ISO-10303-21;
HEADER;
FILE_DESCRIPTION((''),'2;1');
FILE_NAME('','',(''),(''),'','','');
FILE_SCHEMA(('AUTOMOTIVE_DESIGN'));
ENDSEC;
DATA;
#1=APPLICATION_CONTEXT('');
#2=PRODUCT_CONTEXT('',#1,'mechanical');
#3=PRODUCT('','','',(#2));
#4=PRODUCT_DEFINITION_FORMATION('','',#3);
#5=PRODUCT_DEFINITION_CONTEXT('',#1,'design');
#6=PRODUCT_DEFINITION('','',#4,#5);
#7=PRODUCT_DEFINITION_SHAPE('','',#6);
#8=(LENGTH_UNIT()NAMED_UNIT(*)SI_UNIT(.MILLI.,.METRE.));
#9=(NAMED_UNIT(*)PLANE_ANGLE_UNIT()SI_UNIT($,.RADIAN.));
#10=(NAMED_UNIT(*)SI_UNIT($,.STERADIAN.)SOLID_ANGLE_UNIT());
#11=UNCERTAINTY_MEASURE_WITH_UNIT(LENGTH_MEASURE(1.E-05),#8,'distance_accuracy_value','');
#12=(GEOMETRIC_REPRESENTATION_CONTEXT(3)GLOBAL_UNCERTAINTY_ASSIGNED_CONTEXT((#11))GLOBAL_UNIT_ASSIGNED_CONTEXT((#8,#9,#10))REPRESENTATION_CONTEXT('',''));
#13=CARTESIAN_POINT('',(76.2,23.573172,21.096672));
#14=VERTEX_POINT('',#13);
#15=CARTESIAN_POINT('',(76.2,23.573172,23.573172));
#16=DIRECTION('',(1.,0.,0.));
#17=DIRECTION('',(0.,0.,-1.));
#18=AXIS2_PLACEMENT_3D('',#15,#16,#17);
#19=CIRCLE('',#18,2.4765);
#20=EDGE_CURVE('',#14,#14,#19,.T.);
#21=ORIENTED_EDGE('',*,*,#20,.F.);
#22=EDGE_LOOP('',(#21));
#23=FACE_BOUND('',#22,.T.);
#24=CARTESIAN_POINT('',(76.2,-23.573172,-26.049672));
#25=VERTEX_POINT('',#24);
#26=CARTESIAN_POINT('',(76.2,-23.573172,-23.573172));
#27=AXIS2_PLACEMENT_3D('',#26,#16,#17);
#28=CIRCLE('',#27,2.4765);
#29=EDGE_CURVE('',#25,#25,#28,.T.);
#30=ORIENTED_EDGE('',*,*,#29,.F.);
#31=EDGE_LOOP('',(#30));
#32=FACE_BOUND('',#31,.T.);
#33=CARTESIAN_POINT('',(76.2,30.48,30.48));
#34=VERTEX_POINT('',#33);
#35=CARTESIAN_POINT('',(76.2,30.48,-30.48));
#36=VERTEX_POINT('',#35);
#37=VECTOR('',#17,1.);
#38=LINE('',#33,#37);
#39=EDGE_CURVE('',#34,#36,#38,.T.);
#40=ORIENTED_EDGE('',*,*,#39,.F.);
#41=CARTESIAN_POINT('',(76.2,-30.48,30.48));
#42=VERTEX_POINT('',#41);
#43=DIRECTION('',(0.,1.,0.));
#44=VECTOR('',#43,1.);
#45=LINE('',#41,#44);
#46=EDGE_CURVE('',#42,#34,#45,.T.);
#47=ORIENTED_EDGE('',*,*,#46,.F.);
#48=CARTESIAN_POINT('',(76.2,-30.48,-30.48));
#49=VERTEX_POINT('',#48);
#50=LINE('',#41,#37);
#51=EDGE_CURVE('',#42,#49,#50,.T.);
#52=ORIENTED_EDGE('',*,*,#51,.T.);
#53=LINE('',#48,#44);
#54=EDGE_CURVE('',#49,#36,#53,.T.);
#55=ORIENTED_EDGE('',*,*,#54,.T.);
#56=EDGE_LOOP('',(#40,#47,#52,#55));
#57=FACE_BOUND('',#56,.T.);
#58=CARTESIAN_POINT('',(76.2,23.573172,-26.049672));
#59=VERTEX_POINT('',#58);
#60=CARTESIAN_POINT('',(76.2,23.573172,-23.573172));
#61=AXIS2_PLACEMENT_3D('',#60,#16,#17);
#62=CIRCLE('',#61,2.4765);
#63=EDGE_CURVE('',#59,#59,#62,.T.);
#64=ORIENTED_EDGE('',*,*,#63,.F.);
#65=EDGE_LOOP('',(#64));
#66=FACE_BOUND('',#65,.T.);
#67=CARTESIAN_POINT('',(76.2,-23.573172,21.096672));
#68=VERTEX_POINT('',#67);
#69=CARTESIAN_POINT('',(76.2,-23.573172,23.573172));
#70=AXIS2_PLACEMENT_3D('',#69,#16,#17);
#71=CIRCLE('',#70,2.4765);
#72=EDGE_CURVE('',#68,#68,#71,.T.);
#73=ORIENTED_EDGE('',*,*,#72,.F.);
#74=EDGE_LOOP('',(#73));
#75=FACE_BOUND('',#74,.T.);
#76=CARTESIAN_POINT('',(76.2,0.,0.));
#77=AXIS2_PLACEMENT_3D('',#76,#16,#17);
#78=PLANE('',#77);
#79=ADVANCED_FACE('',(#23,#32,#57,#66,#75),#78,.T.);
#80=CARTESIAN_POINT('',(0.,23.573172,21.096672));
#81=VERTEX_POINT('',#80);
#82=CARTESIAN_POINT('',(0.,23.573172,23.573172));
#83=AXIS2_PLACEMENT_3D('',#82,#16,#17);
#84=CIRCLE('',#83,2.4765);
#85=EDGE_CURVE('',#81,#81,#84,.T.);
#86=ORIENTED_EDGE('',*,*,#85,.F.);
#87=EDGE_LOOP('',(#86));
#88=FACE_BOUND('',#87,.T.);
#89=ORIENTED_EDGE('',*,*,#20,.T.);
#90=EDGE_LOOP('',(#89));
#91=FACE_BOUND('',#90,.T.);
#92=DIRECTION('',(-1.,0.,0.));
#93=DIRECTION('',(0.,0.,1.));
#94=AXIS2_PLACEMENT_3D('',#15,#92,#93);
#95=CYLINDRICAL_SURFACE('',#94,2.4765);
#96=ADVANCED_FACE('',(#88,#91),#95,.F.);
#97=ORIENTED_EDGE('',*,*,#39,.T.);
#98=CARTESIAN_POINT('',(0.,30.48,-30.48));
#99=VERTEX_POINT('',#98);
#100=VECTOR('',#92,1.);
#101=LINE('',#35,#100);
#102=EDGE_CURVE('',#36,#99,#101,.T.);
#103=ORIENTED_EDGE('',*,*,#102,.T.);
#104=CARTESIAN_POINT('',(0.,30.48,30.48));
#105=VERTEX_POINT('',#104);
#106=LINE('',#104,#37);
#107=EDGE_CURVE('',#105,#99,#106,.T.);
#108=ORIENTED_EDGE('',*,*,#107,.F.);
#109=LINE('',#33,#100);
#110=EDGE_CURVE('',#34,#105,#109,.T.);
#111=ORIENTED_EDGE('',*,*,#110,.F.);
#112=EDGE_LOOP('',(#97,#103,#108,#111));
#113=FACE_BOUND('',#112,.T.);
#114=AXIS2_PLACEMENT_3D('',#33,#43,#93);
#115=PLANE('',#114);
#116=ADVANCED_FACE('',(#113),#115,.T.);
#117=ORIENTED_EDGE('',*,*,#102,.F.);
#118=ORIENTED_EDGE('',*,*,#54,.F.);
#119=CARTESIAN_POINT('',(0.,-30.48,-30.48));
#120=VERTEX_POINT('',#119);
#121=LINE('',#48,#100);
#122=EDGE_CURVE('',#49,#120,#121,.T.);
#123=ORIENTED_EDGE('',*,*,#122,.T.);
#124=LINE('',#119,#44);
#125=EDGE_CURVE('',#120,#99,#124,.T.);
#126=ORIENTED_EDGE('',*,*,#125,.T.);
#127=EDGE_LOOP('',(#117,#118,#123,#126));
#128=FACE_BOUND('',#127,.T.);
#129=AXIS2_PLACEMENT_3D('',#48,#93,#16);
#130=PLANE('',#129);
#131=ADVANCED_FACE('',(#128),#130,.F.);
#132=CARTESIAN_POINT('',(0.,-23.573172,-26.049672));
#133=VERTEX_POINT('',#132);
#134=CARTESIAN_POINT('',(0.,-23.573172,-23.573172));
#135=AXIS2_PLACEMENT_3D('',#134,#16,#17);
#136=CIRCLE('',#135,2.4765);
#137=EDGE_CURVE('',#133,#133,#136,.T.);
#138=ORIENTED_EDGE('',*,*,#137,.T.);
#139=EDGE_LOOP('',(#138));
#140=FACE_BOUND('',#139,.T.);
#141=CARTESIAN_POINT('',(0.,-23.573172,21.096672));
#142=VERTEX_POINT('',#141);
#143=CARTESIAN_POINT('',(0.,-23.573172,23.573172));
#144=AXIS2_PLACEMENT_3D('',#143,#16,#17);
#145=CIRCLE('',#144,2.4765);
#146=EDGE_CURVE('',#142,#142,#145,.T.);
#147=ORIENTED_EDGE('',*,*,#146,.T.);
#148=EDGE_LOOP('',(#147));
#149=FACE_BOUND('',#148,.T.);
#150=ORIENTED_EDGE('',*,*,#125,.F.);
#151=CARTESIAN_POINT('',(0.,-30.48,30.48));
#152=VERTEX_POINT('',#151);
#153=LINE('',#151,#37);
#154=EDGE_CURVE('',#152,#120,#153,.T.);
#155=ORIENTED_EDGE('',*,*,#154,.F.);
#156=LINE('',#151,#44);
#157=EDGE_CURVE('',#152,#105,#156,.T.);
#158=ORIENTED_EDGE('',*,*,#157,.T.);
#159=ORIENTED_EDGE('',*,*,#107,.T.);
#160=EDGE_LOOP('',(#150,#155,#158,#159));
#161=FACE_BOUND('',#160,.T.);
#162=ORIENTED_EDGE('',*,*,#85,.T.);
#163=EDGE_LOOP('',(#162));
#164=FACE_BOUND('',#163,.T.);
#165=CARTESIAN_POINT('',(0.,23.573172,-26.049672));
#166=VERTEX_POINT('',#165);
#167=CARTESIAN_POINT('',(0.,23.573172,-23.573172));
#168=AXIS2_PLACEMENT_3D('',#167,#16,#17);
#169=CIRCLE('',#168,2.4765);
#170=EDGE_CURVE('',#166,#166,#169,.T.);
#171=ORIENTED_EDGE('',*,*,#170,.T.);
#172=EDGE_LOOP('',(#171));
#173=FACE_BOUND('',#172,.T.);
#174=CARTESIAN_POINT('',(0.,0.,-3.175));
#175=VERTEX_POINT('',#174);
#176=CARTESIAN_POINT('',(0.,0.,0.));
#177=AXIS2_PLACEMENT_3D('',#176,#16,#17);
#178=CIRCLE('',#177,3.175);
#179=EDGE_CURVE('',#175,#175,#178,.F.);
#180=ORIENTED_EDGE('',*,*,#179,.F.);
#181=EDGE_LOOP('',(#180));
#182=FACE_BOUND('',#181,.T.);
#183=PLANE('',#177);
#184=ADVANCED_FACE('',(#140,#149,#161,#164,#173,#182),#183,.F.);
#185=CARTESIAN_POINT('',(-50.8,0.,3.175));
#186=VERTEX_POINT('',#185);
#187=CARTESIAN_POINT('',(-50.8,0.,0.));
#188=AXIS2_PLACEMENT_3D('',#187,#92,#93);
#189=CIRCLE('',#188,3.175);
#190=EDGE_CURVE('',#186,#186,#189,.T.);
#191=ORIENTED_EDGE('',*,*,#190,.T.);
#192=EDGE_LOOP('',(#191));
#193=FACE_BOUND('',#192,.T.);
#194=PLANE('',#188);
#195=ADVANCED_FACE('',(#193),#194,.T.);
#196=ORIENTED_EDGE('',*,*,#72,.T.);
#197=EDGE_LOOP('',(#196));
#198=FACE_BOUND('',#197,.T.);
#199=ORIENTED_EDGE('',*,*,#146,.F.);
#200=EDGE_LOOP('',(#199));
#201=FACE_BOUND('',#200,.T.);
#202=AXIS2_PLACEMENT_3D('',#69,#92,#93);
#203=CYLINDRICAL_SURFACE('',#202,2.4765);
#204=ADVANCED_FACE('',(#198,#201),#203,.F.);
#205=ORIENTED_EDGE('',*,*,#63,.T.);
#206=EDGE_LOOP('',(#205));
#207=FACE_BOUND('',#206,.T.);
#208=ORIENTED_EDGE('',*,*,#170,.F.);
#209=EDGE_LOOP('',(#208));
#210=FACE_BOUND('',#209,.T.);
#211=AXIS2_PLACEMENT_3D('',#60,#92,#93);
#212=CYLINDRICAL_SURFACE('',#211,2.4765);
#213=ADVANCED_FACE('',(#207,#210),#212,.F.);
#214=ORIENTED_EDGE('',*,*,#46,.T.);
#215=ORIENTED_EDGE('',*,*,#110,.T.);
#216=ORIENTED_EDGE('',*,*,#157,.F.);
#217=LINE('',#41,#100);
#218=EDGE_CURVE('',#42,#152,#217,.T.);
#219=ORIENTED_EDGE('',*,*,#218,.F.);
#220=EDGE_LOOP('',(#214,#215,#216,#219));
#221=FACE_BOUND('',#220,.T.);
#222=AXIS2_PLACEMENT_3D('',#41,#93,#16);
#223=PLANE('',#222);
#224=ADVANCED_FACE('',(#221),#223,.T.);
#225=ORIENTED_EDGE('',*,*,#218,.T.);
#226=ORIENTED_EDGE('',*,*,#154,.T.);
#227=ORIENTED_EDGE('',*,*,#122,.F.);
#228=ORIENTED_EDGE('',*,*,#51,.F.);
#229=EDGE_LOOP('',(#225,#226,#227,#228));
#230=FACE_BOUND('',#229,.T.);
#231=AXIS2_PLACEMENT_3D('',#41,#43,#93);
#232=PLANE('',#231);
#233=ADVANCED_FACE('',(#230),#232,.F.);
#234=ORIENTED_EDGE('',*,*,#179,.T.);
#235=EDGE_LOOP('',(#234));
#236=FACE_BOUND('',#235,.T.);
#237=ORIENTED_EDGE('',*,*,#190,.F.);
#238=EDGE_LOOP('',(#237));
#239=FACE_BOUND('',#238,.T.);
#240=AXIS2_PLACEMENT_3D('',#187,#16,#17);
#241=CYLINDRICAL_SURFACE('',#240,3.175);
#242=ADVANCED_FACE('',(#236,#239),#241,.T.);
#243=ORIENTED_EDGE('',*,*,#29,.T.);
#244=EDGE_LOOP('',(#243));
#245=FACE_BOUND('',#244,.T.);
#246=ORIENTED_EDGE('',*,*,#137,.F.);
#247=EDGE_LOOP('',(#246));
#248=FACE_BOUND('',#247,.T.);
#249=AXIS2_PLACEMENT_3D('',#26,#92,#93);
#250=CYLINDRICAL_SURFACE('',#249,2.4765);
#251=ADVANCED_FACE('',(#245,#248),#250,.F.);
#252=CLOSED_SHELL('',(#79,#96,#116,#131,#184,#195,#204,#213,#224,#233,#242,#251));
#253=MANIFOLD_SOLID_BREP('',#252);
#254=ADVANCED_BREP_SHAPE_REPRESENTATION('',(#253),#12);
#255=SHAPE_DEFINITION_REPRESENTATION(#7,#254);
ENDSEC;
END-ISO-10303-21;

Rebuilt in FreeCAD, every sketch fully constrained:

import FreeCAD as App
import Part
import Sketcher

V = App.Vector
Q = App.Units.Quantity

doc = App.newDocument("Part")
body = doc.addObject("PartDesign::Body", "Body")

sketch1 = body.newObject("Sketcher::SketchObject", "Sketch")
sketch1.AttachmentSupport = (doc.getObject("YZ_Plane"), [""])
sketch1.MapMode = "FlatFace"
sketch1.addGeometry(Part.LineSegment(V(30.5, 30.5, 0), V(-30.5, 30.5, 0)), False)
sketch1.addGeometry(Part.LineSegment(V(-30.5, 30.5, 0), V(-30.5, -30.5, 0)), False)
sketch1.addGeometry(Part.LineSegment(V(-30.5, -30.5, 0), V(30.5, -30.5, 0)), False)
sketch1.addGeometry(Part.LineSegment(V(30.5, -30.5, 0), V(30.5, 30.5, 0)), False)
sketch1.addGeometry(Part.Circle(V(-23.6, 23.6, 0), V(0, 0, 1), 2.5), False)
sketch1.addGeometry(Part.Circle(V(-23.6, -23.6, 0), V(0, 0, 1), 2.5), False)
sketch1.addGeometry(Part.Circle(V(23.6, 23.6, 0), V(0, 0, 1), 2.5), False)
sketch1.addGeometry(Part.Circle(V(23.6, -23.6, 0), V(0, 0, 1), 2.5), False)
sketch1.addConstraint(Sketcher.Constraint("Coincident", 0, 2, 1, 1))
sketch1.addConstraint(Sketcher.Constraint("Coincident", 1, 2, 2, 1))
sketch1.addConstraint(Sketcher.Constraint("Coincident", 2, 2, 3, 1))
sketch1.addConstraint(Sketcher.Constraint("Coincident", 3, 2, 0, 1))
sketch1.addConstraint(Sketcher.Constraint("Horizontal", 0))
sketch1.addConstraint(Sketcher.Constraint("Vertical", 1))
sketch1.addConstraint(Sketcher.Constraint("Horizontal", 2))
sketch1.addConstraint(Sketcher.Constraint("Vertical", 3))
sketch1.addConstraint(Sketcher.Constraint("Equal", 4, 5))
sketch1.addConstraint(Sketcher.Constraint("Equal", 5, 6))
sketch1.addConstraint(Sketcher.Constraint("Equal", 6, 7))
sketch1.addConstraint(Sketcher.Constraint("Symmetric", 5, 3, 6, 3, -1, 1))
sketch1.addConstraint(Sketcher.Constraint("Symmetric", 4, 3, 7, 3, -1, 1))
sketch1.addConstraint(Sketcher.Constraint("Symmetric", 0, 2, 2, 2, -1, 1))
sketch1.addConstraint(Sketcher.Constraint("Symmetric", 4, 3, 6, 3, -2))
sketch1.addConstraint(Sketcher.Constraint("Equal", 2, 1))
sketch1.addConstraint(Sketcher.Constraint("Diameter", 4, Q("0.195 in")))
sketch1.addConstraint(Sketcher.Constraint("DistanceX", 0, 2, 0, 1, Q("2.4 in")))
sketch1.addConstraint(Sketcher.Constraint("DistanceX", 4, 3, -1, 1, Q("23.573172 mm")))
sketch1.addConstraint(Sketcher.Constraint("DistanceY", -1, 1, 4, 3, Q("23.573172 mm")))
pad1 = body.newObject("PartDesign::Pad", "Pad")
pad1.Profile = sketch1
pad1.Length = Q("3 in")

sketch2 = body.newObject("Sketcher::SketchObject", "Sketch001")
sketch2.AttachmentSupport = (doc.getObject("YZ_Plane"), [""])
sketch2.MapMode = "FlatFace"
sketch2.addGeometry(Part.Circle(V(0, 0, 0), V(0, 0, 1), 3.2), False)
sketch2.addConstraint(Sketcher.Constraint("Coincident", 0, 3, -1, 1))
sketch2.addConstraint(Sketcher.Constraint("Diameter", 0, Q("0.25 in")))
pad2 = body.newObject("PartDesign::Pad", "Pad001")
pad2.Profile = sketch2
pad2.Length = Q("2 in")
pad2.Reversed = True

doc.recompute()
